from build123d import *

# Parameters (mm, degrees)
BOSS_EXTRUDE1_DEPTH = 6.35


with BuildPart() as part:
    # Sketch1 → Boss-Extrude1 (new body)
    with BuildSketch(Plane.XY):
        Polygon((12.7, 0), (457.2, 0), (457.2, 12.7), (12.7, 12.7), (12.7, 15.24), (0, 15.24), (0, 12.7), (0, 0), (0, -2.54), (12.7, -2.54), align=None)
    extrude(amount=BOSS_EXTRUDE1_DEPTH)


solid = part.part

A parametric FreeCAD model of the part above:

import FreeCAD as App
import Part
import Sketcher

V = App.Vector
Q = App.Units.Quantity


def add_polygon(sketch, points):
    """Adds a closed chain of lines whose ends are joined by coincident constraints."""
    first, n = sketch.GeometryCount, len(points)
    for a, b in zip(points, points[1:] + points[:1]):
        sketch.addGeometry(Part.LineSegment(App.Vector(*a, 0), App.Vector(*b, 0)), False)
    for i in range(n):
        sketch.addConstraint(Sketcher.Constraint("Coincident", first + i, 2, first + (i + 1) % n, 1))

doc = App.newDocument("Part")
body = doc.addObject("PartDesign::Body", "Body")

sketch1 = body.newObject("Sketcher::SketchObject", "Sketch")
sketch1.AttachmentSupport = (doc.getObject("XY_Plane"), [""])
sketch1.MapMode = "FlatFace"
add_polygon(sketch1, [(12.7, 0), (457.2, 0), (457.2, 12.7), (12.7, 12.7), (12.7, 15.2), (0, 15.2), (0, -2.5), (12.7, -2.5)])
sketch1.addConstraint(Sketcher.Constraint("Horizontal", 0))
sketch1.addConstraint(Sketcher.Constraint("Vertical", 1))
sketch1.addConstraint(Sketcher.Constraint("Horizontal", 2))
sketch1.addConstraint(Sketcher.Constraint("Vertical", 3))
sketch1.addConstraint(Sketcher.Constraint("Horizontal", 4))
sketch1.addConstraint(Sketcher.Constraint("Vertical", 5))
sketch1.addConstraint(Sketcher.Constraint("Horizontal", 6))
sketch1.addConstraint(Sketcher.Constraint("Vertical", 7))
sketch1.addConstraint(Sketcher.Constraint("PointOnObject", 0, 2, -1))
sketch1.addConstraint(Sketcher.Constraint("PointOnObject", 4, 2, -2))
sketch1.addConstraint(Sketcher.Constraint("Vertical", 3, 2, 6, 2))
sketch1.addConstraint(Sketcher.Constraint("Equal", 6, 1))
sketch1.addConstraint(Sketcher.Constraint("Equal", 3, 7))
sketch1.addConstraint(Sketcher.Constraint("DistanceX", 0, 1, 0, 2, Q("17.5 in")))
sketch1.addConstraint(Sketcher.Constraint("DistanceX", 4, 2, 4, 1, Q("0.5 in")))
sketch1.addConstraint(Sketcher.Constraint("DistanceY", 3, 1, 3, 2, Q("0.1 in")))
pad1 = body.newObject("PartDesign::Pad", "Pad")
pad1.Profile = sketch1
pad1.Length = Q("0.25 in")

doc.recompute()
